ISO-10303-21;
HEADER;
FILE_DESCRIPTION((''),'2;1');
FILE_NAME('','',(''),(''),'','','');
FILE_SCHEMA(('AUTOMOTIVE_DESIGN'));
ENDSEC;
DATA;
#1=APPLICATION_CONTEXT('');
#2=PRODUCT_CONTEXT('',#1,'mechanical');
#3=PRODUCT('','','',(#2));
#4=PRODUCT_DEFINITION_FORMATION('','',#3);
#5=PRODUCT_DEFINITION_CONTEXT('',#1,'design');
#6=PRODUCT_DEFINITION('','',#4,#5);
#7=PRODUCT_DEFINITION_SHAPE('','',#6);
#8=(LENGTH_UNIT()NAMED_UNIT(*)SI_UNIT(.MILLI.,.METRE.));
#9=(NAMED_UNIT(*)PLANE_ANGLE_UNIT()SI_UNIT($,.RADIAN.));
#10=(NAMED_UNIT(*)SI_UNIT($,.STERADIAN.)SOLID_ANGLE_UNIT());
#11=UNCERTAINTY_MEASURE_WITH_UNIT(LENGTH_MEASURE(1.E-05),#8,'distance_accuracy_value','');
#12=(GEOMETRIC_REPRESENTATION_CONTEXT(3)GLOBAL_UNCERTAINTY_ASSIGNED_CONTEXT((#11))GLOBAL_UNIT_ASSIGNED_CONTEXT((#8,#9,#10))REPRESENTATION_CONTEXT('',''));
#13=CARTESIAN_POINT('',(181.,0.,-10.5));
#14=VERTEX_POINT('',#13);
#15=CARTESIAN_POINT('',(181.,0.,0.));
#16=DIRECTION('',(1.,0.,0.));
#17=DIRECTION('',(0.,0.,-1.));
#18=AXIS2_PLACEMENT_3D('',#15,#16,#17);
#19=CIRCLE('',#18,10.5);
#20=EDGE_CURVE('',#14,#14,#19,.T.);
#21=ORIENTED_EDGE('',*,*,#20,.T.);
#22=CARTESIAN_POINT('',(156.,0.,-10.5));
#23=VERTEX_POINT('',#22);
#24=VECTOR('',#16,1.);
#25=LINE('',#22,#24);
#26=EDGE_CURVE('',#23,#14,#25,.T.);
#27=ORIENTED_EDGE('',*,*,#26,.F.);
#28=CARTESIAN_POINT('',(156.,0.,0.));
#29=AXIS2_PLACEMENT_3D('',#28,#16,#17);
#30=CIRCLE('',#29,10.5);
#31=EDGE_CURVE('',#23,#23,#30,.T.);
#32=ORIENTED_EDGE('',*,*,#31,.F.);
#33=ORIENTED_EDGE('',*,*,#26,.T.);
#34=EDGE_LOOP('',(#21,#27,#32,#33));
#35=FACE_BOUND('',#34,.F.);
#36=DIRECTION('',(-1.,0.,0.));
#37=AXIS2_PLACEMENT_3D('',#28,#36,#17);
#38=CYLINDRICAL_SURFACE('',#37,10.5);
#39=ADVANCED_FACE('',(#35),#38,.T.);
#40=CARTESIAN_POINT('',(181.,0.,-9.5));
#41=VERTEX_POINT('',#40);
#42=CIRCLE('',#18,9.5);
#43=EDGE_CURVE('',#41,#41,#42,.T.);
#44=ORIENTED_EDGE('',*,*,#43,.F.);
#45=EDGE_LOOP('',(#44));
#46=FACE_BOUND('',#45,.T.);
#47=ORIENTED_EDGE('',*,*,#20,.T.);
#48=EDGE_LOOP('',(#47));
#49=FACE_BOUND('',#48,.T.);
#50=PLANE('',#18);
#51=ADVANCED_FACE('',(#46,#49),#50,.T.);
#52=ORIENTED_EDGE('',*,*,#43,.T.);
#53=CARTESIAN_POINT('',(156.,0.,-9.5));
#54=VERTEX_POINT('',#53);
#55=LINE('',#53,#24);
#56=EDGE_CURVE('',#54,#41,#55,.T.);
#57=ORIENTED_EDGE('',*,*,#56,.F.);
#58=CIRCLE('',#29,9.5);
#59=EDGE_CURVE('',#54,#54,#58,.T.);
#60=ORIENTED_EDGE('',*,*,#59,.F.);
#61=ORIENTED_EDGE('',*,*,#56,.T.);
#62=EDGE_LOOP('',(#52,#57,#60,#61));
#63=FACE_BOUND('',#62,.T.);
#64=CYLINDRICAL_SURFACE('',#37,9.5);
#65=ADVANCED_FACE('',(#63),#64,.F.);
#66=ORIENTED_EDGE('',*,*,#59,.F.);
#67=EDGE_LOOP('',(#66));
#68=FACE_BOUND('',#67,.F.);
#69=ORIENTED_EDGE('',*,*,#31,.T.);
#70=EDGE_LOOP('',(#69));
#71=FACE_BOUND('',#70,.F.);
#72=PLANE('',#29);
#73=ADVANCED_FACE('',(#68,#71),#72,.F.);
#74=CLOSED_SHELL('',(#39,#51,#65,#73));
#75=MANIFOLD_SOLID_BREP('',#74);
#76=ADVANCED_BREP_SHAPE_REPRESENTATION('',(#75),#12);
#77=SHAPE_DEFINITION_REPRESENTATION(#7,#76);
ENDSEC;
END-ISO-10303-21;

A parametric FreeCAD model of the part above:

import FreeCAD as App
import Part
import Sketcher

doc = App.newDocument("Part")
body = doc.addObject("PartDesign::Body", "Body")

# Sketch on XY plane
sketch1 = body.newObject("Sketcher::SketchObject", "Sketch")
sketch1.AttachmentSupport = (doc.getObject("XY_Plane"), [""])
sketch1.MapMode = "FlatFace"
sketch1.addGeometry(Part.Circle(App.Vector(0, 0, 0), App.Vector(0, 0, 1), 9.5), False)
sketch1.addConstraint(Sketcher.Constraint("Coincident", 0, 3, -1, 1))
sketch1.addConstraint(Sketcher.Constraint("Diameter", 0, 19.0))
pad1 = body.newObject("PartDesign::Pad", "Pad")
pad1.Profile = sketch1
pad1.Length = 25
body2 = doc.addObject("PartDesign::Body", "Body001")
doc.recompute()

body.Placement = App.Placement(App.Vector(0, 0, 0), App.Rotation(App.Vector(0, 1, 0), 90))
boolean = body2.newObject("PartDesign::Boolean", "Boolean")
boolean.Type = "Fuse"
boolean.addObjects([body])
body3 = doc.addObject("PartDesign::Body", "Body002")
doc.recompute()

body2.Placement = App.Placement(App.Vector(156, 0, 0), App.Rotation(App.Vector(0, 0, 1), 0))
boolean2 = body3.newObject("PartDesign::Boolean", "Boolean001")
boolean2.Type = "Fuse"
boolean2.addObjects([body2])
body4 = doc.addObject("PartDesign::Body", "Body003")

# Sketch on XY plane
sketch2 = body4.newObject("Sketcher::SketchObject", "Sketch001")
sketch2.AttachmentSupport = (doc.getObject("XY_Plane003"), [""])
sketch2.MapMode = "FlatFace"
sketch2.addGeometry(Part.Circle(App.Vector(0, 0, 0), App.Vector(0, 0, 1), 10.5), False)
sketch2.addConstraint(Sketcher.Constraint("Coincident", 0, 3, -1, 1))
sketch2.addConstraint(Sketcher.Constraint("Diameter", 0, 21.0))
pad2 = body4.newObject("PartDesign::Pad", "Pad001")
pad2.Profile = sketch2
pad2.Length = 25
body5 = doc.addObject("PartDesign::Body", "Body004")
doc.recompute()

body4.Placement = App.Placement(App.Vector(0, 0, 0), App.Rotation(App.Vector(0, 1, 0), 90))
boolean3 = body5.newObject("PartDesign::Boolean", "Boolean002")
boolean3.Type = "Fuse"
boolean3.addObjects([body4])
body6 = doc.addObject("PartDesign::Body", "Body005")
doc.recompute()

body5.Placement = App.Placement(App.Vector(156, 0, 0), App.Rotation(App.Vector(0, 0, 1), 0))
boolean4 = body6.newObject("PartDesign::Boolean", "Boolean003")
boolean4.Type = "Fuse"
boolean4.addObjects([body5])
doc.recompute()

boolean5 = body6.newObject("PartDesign::Boolean", "Boolean004")
boolean5.Type = "Cut"
boolean5.addObjects([body3])

doc.recompute()
